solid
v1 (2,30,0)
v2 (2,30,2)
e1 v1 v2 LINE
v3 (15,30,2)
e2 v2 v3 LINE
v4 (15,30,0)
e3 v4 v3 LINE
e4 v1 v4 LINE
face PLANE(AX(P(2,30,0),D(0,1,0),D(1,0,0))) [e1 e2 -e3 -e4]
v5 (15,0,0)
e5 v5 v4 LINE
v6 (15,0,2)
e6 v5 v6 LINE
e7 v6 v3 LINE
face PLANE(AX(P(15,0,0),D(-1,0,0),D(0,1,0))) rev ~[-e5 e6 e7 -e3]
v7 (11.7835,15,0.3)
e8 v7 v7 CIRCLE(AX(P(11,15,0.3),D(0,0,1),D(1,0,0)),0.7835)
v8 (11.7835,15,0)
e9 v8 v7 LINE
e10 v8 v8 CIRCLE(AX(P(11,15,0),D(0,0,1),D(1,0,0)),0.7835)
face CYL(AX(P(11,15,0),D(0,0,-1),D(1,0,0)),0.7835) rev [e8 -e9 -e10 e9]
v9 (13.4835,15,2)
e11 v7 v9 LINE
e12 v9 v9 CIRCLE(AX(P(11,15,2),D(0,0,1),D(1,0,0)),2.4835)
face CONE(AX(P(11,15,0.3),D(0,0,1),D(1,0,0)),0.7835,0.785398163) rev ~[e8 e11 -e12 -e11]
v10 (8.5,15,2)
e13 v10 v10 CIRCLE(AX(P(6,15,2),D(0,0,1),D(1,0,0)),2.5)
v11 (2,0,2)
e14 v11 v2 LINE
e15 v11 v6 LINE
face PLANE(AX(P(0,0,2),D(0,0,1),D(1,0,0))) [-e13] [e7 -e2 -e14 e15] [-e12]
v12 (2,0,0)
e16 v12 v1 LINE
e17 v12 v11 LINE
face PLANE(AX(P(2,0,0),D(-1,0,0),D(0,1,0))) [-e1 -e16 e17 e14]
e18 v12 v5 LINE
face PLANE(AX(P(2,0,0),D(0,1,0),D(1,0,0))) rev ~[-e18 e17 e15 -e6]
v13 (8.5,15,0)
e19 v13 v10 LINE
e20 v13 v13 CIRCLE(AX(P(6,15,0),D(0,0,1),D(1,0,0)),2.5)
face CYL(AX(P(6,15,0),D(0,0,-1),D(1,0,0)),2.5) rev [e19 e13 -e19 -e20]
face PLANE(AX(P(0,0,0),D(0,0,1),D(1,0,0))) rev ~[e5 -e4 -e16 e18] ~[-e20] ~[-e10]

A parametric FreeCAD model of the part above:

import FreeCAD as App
import Part
import Sketcher

V = App.Vector
Q = App.Units.Quantity


def edges_at(feature, points):
    """Names of the edges that pass closest to the given points."""
    edges = feature.Shape.Edges
    near = lambda p: min(range(len(edges)), key=lambda i: edges[i].distToShape(Part.Vertex(*p))[0])
    return sorted({f"Edge{near(p) + 1}" for p in points})


def add_polygon(sketch, points):
    """Adds a closed chain of lines whose ends are joined by coincident constraints."""
    first, n = sketch.GeometryCount, len(points)
    for a, b in zip(points, points[1:] + points[:1]):
        sketch.addGeometry(Part.LineSegment(App.Vector(*a, 0), App.Vector(*b, 0)), False)
    for i in range(n):
        sketch.addConstraint(Sketcher.Constraint("Coincident", first + i, 2, first + (i + 1) % n, 1))

doc = App.newDocument("Part")
body = doc.addObject("PartDesign::Body", "Body")

# Sketch on XY plane
sketch1 = body.newObject("Sketcher::SketchObject", "Sketch")
sketch1.AttachmentSupport = (doc.getObject("XY_Plane"), [""])
sketch1.MapMode = "FlatFace"
add_polygon(sketch1, [(2, 30), (2, 0), (15, 0), (15, 30)])  # lines 0-3
sketch1.addGeometry(Part.Circle(V(6, 15, 0), V(0, 0, 1), 2.5), False)  # 4
sketch1.addGeometry(Part.Circle(V(11, 15, 0), V(0, 0, 1), 0.7835), False)  # 5
sketch1.addConstraint([
    Sketcher.Constraint("Vertical", 0),
    Sketcher.Constraint("Horizontal", 1),
    Sketcher.Constraint("Vertical", 2),
    Sketcher.Constraint("Horizontal", 3),
    Sketcher.Constraint("PointOnObject", 0, 2, -1),
    Sketcher.Constraint("Horizontal", 4, 3, 5, 3),
    Sketcher.Constraint("Diameter", 4, Q("5 mm")),
    Sketcher.Constraint("DistanceX", 1, 1, 1, 2, Q("13 mm")),
    Sketcher.Constraint("DistanceY", 0, 2, 0, 1, Q("30 mm")),
    Sketcher.Constraint("Diameter", 5, Q("1.567 mm")),
    Sketcher.Constraint("DistanceX", -1, 1, 4, 3, Q("6 mm")),
    Sketcher.Constraint("DistanceY", -1, 1, 4, 3, Q("15 mm")),
    Sketcher.Constraint("DistanceX", -1, 1, 5, 3, Q("11 mm")),
    Sketcher.Constraint("DistanceX", -1, 1, 0, 2, Q("2 mm")),
])
pad1 = body.newObject("PartDesign::Pad", "Pad")
pad1.Profile = sketch1
pad1.Length = 2
doc.recompute()

chamfer = body.newObject("PartDesign::Chamfer", "Chamfer")
chamfer.Base = (pad1, edges_at(pad1, [(10.216, 15, 2)]))
chamfer.Size = 1.7

doc.recompute()
